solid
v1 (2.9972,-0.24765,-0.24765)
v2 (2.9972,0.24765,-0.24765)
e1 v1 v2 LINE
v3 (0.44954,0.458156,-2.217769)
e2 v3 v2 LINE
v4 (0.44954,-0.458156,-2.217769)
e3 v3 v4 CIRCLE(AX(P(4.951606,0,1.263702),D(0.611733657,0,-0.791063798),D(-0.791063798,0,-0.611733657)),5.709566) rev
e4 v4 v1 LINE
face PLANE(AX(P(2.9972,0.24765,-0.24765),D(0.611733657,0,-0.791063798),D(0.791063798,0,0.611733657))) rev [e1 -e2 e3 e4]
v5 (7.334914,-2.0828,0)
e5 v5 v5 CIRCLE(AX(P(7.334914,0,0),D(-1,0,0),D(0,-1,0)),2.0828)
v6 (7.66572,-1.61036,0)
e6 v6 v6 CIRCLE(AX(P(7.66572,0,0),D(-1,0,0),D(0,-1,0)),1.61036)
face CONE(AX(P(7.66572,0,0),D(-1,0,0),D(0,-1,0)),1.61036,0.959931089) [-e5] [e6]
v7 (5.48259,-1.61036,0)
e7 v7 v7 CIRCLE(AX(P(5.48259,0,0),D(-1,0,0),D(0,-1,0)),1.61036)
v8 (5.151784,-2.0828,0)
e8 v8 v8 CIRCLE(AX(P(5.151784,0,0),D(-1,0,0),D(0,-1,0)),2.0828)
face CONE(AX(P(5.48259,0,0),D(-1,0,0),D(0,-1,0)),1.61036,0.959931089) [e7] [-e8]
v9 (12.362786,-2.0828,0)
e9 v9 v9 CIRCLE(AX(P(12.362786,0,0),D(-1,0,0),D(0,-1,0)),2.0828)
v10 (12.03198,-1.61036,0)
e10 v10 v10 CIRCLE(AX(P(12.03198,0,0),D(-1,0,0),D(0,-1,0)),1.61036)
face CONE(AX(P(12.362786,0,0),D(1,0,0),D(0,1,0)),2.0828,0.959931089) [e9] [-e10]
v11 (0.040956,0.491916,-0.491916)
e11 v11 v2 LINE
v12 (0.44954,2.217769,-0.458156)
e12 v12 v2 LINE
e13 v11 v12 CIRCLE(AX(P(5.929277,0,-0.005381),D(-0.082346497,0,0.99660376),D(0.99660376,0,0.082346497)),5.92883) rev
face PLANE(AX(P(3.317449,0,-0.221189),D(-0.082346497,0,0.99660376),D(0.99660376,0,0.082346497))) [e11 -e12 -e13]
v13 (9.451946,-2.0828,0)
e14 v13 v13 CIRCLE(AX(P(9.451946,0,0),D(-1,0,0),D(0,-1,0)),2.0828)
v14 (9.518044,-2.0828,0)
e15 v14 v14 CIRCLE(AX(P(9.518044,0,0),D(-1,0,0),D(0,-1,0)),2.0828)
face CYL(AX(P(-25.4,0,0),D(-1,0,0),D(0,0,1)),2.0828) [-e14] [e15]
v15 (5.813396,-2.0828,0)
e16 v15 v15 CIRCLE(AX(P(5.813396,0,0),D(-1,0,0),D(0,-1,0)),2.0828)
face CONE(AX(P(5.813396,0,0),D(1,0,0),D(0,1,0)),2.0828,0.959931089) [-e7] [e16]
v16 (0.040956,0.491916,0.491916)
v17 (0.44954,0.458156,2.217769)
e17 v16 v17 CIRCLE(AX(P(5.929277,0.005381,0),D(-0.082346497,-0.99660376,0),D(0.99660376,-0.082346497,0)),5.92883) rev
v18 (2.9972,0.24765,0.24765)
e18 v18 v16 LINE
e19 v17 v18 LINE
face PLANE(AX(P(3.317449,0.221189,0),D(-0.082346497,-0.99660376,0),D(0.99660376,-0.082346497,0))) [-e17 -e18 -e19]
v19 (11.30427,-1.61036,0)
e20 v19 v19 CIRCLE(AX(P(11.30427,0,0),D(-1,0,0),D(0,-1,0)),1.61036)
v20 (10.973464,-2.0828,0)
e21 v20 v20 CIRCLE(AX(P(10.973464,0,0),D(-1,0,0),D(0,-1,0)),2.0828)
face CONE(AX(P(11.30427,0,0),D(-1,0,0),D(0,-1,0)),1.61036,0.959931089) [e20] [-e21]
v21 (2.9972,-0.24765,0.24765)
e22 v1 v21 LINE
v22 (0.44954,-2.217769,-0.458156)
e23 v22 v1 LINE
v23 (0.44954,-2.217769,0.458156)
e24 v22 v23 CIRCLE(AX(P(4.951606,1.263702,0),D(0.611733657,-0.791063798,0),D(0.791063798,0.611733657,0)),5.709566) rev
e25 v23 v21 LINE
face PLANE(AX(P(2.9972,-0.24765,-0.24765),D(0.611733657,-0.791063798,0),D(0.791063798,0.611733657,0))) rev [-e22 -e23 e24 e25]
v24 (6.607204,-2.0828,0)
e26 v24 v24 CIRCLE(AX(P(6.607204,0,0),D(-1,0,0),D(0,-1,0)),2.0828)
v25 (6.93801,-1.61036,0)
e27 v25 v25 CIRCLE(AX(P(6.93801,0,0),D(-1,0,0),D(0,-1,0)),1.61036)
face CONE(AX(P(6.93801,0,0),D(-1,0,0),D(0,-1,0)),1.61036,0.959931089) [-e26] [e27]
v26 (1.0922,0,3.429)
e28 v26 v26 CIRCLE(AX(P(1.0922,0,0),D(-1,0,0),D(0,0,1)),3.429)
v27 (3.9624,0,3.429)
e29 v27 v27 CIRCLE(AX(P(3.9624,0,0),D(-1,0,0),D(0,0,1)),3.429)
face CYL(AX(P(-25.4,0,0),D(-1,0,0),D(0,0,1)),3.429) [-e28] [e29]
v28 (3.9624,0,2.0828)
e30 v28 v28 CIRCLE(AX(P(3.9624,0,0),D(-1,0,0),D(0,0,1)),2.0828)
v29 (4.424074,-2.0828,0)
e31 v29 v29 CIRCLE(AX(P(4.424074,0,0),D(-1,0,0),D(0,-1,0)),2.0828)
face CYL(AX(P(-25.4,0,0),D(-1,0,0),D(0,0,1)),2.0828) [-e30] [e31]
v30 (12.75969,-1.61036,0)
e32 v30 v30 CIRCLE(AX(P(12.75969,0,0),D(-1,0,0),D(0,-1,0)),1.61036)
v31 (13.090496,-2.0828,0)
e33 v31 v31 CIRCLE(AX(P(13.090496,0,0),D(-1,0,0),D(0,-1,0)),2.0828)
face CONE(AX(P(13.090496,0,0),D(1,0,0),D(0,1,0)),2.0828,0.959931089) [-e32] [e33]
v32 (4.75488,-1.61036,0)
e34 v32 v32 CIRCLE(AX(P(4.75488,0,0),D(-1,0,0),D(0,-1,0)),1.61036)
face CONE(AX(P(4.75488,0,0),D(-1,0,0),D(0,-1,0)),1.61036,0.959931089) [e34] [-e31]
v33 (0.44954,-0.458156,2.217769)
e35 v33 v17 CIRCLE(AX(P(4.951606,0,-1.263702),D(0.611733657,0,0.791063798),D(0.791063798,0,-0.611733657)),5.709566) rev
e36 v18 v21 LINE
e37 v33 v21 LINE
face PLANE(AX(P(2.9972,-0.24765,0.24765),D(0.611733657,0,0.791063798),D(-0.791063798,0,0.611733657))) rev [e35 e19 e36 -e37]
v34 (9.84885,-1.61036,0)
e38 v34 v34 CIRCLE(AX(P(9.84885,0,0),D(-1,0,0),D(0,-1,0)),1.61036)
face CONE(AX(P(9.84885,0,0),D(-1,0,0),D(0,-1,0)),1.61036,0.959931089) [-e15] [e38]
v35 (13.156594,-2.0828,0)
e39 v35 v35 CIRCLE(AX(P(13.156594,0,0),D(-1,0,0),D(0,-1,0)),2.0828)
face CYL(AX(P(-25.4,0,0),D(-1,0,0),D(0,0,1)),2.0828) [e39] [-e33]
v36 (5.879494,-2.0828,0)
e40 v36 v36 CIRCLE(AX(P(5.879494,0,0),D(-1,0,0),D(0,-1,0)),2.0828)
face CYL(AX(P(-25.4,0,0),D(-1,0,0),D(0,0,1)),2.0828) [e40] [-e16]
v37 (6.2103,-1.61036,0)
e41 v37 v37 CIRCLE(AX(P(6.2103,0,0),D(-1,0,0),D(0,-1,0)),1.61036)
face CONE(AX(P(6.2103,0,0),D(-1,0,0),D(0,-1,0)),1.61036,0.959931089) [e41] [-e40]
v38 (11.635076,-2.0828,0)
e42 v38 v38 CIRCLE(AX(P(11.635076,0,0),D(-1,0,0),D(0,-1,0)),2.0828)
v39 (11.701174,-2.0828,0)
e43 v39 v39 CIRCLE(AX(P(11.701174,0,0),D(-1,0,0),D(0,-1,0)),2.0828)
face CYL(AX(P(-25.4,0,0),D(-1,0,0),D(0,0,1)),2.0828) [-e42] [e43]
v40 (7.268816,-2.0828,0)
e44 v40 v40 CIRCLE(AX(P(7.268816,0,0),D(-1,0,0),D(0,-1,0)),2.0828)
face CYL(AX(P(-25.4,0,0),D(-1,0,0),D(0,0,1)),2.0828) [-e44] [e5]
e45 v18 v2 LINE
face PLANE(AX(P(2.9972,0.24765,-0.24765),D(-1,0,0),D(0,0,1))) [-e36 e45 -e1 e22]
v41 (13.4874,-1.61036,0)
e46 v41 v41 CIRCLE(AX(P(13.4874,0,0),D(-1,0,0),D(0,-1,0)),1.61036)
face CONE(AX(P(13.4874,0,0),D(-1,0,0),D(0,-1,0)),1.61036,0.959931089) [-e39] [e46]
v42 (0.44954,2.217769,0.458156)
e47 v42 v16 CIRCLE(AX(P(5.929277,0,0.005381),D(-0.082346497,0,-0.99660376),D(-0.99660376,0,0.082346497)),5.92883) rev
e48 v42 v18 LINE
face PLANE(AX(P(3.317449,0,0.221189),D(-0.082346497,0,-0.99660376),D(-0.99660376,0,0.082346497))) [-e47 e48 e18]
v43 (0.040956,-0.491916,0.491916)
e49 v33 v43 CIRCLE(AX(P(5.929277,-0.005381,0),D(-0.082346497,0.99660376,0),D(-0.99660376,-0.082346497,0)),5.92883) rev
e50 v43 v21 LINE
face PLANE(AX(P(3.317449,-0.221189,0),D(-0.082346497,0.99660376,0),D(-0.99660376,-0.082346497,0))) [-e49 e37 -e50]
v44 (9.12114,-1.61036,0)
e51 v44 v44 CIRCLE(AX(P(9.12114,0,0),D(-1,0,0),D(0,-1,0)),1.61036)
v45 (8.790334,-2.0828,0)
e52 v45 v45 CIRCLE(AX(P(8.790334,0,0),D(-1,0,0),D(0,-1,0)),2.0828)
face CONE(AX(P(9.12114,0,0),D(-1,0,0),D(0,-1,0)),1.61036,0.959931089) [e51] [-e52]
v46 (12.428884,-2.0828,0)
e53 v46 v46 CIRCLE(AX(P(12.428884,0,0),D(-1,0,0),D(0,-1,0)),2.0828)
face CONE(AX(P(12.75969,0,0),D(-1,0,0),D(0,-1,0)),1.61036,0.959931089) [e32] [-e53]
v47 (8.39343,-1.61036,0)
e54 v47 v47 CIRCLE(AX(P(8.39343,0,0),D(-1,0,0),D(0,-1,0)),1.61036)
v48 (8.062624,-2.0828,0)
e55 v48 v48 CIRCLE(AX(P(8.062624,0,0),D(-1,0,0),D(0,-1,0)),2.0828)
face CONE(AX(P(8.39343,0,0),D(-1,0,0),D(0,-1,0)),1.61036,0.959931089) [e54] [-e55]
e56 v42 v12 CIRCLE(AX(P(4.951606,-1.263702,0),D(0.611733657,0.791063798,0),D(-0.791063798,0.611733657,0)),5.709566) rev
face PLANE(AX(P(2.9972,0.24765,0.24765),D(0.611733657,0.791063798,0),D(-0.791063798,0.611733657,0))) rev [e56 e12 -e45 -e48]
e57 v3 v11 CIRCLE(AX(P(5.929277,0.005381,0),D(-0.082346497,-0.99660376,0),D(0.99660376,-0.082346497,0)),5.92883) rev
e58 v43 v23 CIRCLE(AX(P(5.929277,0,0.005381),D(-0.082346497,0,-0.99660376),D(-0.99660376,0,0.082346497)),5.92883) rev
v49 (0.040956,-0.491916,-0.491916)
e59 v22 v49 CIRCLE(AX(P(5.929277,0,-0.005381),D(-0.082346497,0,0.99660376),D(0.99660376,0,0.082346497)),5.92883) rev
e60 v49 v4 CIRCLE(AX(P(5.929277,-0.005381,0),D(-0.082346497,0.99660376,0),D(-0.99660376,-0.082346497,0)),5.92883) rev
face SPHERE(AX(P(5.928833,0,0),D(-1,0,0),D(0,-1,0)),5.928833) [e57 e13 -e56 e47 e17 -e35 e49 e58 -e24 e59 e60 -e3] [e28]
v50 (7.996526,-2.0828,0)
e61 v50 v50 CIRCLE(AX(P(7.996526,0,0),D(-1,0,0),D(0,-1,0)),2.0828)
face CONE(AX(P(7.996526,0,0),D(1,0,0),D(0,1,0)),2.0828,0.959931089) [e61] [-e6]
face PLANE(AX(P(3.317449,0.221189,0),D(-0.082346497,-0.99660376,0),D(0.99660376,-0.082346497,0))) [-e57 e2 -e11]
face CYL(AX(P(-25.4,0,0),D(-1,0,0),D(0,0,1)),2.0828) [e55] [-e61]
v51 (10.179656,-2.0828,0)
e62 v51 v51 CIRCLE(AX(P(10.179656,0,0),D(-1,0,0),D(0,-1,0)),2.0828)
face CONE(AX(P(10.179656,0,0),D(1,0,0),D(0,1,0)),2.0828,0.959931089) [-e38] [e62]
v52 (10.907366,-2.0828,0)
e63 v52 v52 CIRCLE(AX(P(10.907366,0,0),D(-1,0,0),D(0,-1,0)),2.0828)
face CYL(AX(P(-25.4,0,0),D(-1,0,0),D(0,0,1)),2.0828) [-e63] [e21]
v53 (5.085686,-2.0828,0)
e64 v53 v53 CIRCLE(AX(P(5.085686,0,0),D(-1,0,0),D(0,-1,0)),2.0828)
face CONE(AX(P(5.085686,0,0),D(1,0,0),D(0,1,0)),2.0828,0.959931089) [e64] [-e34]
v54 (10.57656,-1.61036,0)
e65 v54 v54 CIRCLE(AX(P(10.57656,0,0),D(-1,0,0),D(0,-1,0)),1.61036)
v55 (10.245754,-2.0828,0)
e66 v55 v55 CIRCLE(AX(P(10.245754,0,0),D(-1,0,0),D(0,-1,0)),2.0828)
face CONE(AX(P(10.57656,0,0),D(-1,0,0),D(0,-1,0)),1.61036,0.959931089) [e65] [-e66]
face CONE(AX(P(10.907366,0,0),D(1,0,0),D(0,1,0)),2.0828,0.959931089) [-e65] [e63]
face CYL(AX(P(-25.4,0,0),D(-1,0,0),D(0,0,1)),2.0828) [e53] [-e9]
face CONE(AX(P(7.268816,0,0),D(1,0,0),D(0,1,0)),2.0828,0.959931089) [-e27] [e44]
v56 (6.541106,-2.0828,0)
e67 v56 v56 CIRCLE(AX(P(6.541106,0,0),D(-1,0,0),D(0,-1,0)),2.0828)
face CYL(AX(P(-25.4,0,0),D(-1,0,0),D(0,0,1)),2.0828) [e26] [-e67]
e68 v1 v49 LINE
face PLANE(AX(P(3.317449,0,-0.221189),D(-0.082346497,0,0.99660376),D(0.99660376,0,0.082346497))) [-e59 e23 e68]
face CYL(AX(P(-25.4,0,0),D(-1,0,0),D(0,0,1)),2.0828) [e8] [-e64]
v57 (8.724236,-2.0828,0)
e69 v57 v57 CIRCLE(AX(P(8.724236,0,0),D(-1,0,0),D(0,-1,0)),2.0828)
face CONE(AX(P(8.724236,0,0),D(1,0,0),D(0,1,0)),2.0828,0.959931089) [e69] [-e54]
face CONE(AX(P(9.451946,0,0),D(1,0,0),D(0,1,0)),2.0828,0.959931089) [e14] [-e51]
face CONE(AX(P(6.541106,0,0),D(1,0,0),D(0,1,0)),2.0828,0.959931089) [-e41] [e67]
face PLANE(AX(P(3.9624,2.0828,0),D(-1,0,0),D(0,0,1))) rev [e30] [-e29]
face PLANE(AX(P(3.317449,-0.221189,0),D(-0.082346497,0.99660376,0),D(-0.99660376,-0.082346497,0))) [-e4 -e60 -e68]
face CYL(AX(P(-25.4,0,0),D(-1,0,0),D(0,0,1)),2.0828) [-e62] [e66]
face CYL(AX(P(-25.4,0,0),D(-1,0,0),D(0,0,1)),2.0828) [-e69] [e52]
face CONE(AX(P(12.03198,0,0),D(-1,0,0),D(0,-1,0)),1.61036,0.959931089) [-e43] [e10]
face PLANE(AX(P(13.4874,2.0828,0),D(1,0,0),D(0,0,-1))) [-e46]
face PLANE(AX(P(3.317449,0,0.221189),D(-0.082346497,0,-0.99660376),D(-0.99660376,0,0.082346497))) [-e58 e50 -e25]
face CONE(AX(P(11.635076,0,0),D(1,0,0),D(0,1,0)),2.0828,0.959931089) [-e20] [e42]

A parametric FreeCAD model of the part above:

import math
import FreeCAD as App
import Part
import Sketcher
Q = App.Units.Quantity


def add_polygon(sketch, points):
    """Adds a closed chain of lines whose ends are joined by coincident constraints."""
    first, n = sketch.GeometryCount, len(points)
    for a, b in zip(points, points[1:] + points[:1]):
        sketch.addGeometry(Part.LineSegment(App.Vector(*a, 0), App.Vector(*b, 0)), False)
    for i in range(n):
        sketch.addConstraint(Sketcher.Constraint("Coincident", first + i, 2, first + (i + 1) % n, 1))

doc = App.newDocument("Part")
body = doc.addObject("PartDesign::Body", "Body")

# Sketch on XY plane
sketch1 = doc.addObject("Sketcher::SketchObject", "Sketch")
body.addObject(sketch1)
sketch1.AttachmentSupport = (doc.XY_Plane, [""])
sketch1.MapMode = "FlatFace"
sketch1.addGeometry([
    Part.LineSegment(App.Vector(3.9624, 2.0828, 0), App.Vector(3.9624, 3.429, 0)),  # 0
    Part.LineSegment(App.Vector(3.9624, 3.429, 0), App.Vector(1.0922, 3.429, 0)),  # 1
    Part.ArcOfCircle(Part.Circle(App.Vector(5.928833, 0, 0), App.Vector(0, 0, 1), 5.928833), math.radians(144.664719), math.radians(180)),  # 2
    Part.LineSegment(App.Vector(0, 0, 0), App.Vector(13.4874, 0, 0)),  # 3
    Part.LineSegment(App.Vector(13.4874, 0, 0), App.Vector(13.4874, 2.0828, 0)),  # 4
    Part.LineSegment(App.Vector(13.4874, 2.0828, 0), App.Vector(3.9624, 2.0828, 0)),  # 5
], False)
sketch1.addConstraint([
    Sketcher.Constraint("Coincident", 0, 2, 1, 1),
    Sketcher.Constraint("Coincident", 1, 2, 2, 1),
    Sketcher.Constraint("Coincident", 2, 2, 3, 1),
    Sketcher.Constraint("Coincident", 3, 2, 4, 1),
    Sketcher.Constraint("Coincident", 4, 2, 5, 1),
    Sketcher.Constraint("Coincident", 5, 2, 0, 1),
    Sketcher.Constraint("Vertical", 0),
    Sketcher.Constraint("Horizontal", 1),
    Sketcher.Constraint("Horizontal", 3),
    Sketcher.Constraint("Vertical", 4),
    Sketcher.Constraint("Horizontal", 5),
    Sketcher.Constraint("Coincident", 2, 2, -1, 1),
    Sketcher.Constraint("PointOnObject", 2, 3, -1),
    Sketcher.Constraint("DistanceX", 1, 2, 1, 1, Q("0.113 in")),
    Sketcher.Constraint("DistanceX", 3, 1, 3, 2, Q("0.531 in")),
    Sketcher.Constraint("DistanceX", 5, 2, 5, 1, Q("0.375 in")),
    Sketcher.Constraint("DistanceY", 0, 1, 0, 2, Q("0.053 in")),
    Sketcher.Constraint("DistanceY", 4, 1, 4, 2, Q("0.082 in")),
])
revolution = doc.addObject("PartDesign::Revolution", "Revolution")
body.addObject(revolution)
revolution.Profile = sketch1
revolution.ReferenceAxis = (sketch1, ["H_Axis"])
revolution.Angle = 360

# Sketch on YZ plane
sketch2 = doc.addObject("Sketcher::SketchObject", "Sketch001")
body.addObject(sketch2)
sketch2.AttachmentSupport = (doc.YZ_Plane, [""])
sketch2.MapMode = "FlatFace"
add_polygon(sketch2, [(-2.5654, 0.4953), (-2.5654, -0.4953), (2.5654, -0.4953), (2.5654, 0.4953)])  # lines 0-3
sketch2.addConstraint([
    Sketcher.Constraint("Vertical", 0),
    Sketcher.Constraint("Horizontal", 1),
    Sketcher.Constraint("Vertical", 2),
    Sketcher.Constraint("Horizontal", 3),
    Sketcher.Constraint("Symmetric", 0, 2, 2, 2, -1, 1),
    Sketcher.Constraint("DistanceX", 1, 1, 1, 2, Q("0.202 in")),
    Sketcher.Constraint("DistanceY", 0, 2, 0, 1, Q("0.039 in")),
])

# Sketch on YZ plane
sketch3 = doc.addObject("Sketcher::SketchObject", "Sketch002")
body.addObject(sketch3)
sketch3.AttachmentSupport = (doc.YZ_Plane, [""])
sketch3.MapMode = "FlatFace"
sketch3.AttachmentOffset = App.Placement(App.Vector(0, 0, 0.118 * 25.4), App.Rotation())
add_polygon(sketch3, [(-0.24765, 0.24765), (-0.24765, -0.24765), (0.24765, -0.24765), (0.24765, 0.24765)])  # lines 0-3
sketch3.addConstraint([
    Sketcher.Constraint("Vertical", 0),
    Sketcher.Constraint("Horizontal", 1),
    Sketcher.Constraint("Vertical", 2),
    Sketcher.Constraint("Horizontal", 3),
    Sketcher.Constraint("Symmetric", 0, 2, 2, 2, -1, 1),
    Sketcher.Constraint("Equal", 3, 0),
    Sketcher.Constraint("DistanceX", 1, 1, 1, 2, Q("0.0195 in")),
])

subtractiveloft = doc.addObject("PartDesign::SubtractiveLoft", "SubtractiveLoft")
body.addObject(subtractiveloft)
subtractiveloft.Profile = sketch2
subtractiveloft.Sections = [sketch3]
doc.recompute()

polarpattern = doc.addObject("PartDesign::PolarPattern", "PolarPattern")
body.addObject(polarpattern)
polarpattern.Originals = [subtractiveloft]
polarpattern.Axis = (doc.X_Axis, [""])
polarpattern.Angle = 90
polarpattern.Occurrences = 2
body.Tip = polarpattern

# Sketch on XY plane
sketch4 = doc.addObject("Sketcher::SketchObject", "Sketch003")
body.addObject(sketch4)
sketch4.AttachmentSupport = (doc.XY_Plane, [""])
sketch4.MapMode = "FlatFace"
add_polygon(sketch4, [(4.75488, -1.61036), (4.424074, -2.0828), (4.424074, -2.6035), (5.085686, -2.6035), (5.085686, -2.0828)])  # lines 0-4
sketch4.addConstraint([
    Sketcher.Constraint("Vertical", 1),
    Sketcher.Constraint("Horizontal", 2),
    Sketcher.Constraint("Vertical", 3),
    Sketcher.Constraint("Horizontal", 0, 2, 3, 2),
    Sketcher.Constraint("Equal", 0, 4),
    Sketcher.Constraint("Angle", 0, Q("-125 deg")),
    Sketcher.Constraint("DistanceY", 1, 2, 1, 1, Q("0.0205 in")),
    Sketcher.Constraint("DistanceY", 0, 2, -1, 1, Q("0.082 in")),
    Sketcher.Constraint("DistanceX", -1, 1, 4, 2, Q("0.1872 in")),
    Sketcher.Constraint("DistanceY", 4, 2, -1, 1, Q("0.0634 in")),
])
groove = doc.addObject("PartDesign::Groove", "Groove")
body.addObject(groove)
groove.Profile = sketch4
groove.ReferenceAxis = (sketch4, ["H_Axis"])
groove.Angle = 360
doc.recompute()

linearpattern = doc.addObject("PartDesign::LinearPattern", "LinearPattern")
body.addObject(linearpattern)
linearpattern.Originals = [groove]
linearpattern.Direction = (doc.X_Axis, [""])
linearpattern.Mode = "offset"
linearpattern.Offset = 0.72771
linearpattern.Occurrences = 13
body.Tip = linearpattern

doc.recompute()
